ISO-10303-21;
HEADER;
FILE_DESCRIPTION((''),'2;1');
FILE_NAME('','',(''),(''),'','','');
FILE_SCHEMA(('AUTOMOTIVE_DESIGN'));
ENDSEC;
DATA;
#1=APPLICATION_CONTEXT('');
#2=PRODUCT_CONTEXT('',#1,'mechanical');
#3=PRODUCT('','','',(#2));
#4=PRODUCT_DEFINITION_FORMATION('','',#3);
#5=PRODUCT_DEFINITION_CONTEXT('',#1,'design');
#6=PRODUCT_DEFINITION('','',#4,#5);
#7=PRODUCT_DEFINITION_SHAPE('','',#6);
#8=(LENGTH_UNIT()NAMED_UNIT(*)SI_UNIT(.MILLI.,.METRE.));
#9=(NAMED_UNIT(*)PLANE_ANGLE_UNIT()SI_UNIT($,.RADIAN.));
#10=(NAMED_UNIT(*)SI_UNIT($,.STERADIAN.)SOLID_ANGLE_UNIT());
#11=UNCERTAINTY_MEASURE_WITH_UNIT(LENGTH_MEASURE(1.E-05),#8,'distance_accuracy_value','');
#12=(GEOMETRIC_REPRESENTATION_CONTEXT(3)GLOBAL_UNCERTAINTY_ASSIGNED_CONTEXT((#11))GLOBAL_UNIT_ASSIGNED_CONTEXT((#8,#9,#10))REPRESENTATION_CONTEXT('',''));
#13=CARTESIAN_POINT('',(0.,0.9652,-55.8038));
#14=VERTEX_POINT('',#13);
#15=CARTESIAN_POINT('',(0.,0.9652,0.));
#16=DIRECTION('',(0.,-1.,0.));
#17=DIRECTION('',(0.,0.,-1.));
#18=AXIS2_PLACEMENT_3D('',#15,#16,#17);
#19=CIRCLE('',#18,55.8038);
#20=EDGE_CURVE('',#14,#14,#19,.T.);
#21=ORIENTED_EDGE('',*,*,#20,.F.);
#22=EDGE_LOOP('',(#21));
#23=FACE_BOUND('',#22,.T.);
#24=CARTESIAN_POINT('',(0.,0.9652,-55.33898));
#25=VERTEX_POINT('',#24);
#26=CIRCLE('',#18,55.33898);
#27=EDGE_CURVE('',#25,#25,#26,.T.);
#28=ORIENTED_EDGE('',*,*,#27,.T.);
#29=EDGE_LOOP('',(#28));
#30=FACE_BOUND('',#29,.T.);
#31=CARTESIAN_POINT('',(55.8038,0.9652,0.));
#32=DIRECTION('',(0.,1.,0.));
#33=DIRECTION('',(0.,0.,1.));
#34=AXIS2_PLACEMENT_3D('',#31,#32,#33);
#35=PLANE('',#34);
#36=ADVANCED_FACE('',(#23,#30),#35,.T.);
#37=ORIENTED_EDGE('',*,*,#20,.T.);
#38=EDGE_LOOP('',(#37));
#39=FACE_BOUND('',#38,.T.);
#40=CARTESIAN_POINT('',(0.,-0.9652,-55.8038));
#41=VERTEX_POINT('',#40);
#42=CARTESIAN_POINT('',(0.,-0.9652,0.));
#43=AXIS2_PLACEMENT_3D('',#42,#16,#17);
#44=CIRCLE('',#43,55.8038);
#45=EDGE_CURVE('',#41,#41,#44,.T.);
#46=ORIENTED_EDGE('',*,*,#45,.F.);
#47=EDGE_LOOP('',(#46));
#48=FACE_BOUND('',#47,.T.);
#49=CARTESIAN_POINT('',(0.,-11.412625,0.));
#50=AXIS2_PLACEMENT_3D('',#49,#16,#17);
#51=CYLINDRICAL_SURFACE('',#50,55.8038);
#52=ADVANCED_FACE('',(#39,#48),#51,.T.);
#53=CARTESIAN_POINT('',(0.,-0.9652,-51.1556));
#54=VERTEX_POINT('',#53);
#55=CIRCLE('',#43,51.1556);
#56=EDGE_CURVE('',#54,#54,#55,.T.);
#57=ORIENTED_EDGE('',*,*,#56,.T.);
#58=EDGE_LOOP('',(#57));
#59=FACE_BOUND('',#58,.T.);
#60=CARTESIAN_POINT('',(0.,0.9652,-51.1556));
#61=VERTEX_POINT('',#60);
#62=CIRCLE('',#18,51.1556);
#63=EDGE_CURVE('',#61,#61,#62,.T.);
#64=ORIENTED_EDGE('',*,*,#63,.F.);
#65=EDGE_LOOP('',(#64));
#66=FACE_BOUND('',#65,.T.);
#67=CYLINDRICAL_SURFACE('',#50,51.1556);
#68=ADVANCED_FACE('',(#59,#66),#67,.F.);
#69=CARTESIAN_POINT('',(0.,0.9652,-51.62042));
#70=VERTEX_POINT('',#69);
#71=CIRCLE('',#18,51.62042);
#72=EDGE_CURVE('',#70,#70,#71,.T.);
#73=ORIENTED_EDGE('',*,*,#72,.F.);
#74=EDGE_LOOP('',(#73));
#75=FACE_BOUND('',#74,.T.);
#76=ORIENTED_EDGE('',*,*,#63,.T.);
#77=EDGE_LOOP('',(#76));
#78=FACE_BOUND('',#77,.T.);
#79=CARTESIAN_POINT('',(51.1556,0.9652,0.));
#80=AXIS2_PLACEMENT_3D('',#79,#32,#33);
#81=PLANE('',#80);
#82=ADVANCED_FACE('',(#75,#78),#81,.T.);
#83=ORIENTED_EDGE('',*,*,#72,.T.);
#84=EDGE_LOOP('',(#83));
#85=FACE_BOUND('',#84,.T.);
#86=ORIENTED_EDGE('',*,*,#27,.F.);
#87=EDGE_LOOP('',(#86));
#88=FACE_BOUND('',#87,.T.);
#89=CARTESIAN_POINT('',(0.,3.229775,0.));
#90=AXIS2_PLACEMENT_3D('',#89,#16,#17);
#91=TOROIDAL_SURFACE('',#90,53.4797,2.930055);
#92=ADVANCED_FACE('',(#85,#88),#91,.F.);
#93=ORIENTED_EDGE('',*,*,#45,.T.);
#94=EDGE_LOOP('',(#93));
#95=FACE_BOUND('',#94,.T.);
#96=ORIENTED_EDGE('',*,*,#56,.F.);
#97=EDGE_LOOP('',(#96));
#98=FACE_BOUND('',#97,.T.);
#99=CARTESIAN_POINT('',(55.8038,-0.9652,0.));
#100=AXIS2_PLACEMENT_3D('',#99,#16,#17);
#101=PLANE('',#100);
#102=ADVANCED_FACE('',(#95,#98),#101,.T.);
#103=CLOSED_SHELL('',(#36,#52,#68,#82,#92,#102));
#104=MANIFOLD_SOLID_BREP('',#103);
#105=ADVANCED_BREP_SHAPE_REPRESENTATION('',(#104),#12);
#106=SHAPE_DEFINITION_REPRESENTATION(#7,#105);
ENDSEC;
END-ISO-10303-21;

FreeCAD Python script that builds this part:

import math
import FreeCAD as App
import Part
import Sketcher
from FreeCAD import Vector
Q = App.Units.Quantity

doc = App.newDocument("Part")
body = doc.addObject("PartDesign::Body", "Body")

# Sketch on XY plane
sketch1 = doc.addObject("Sketcher::SketchObject", "Sketch")
body.addObject(sketch1)
sketch1.AttachmentSupport = (doc.XY_Plane, [""])
sketch1.MapMode = "FlatFace"
sketch1.addGeometry([
    Part.LineSegment(Vector(55.8, -0.97, 0), Vector(55.8, 0.97, 0)),  # 0
    Part.LineSegment(Vector(55.8, 0.97, 0), Vector(55.34, 0.97, 0)),  # 1
    Part.ArcOfCircle(Part.Circle(Vector(53.48, 3.23, 0), Vector(0, 0, 1), 2.93), math.radians(-129), math.radians(-51)),  # 2
    Part.LineSegment(Vector(51.62, 0.97, 0), Vector(51.16, 0.97, 0)),  # 3
    Part.LineSegment(Vector(51.16, 0.97, 0), Vector(51.16, -0.97, 0)),  # 4
    Part.LineSegment(Vector(51.16, -0.97, 0), Vector(55.8, -0.97, 0)),  # 5
], False)
sketch1.addConstraint([
    Sketcher.Constraint("Coincident", 0, 2, 1, 1),
    Sketcher.Constraint("Coincident", 1, 2, 2, 2),
    Sketcher.Constraint("Coincident", 2, 1, 3, 1),
    Sketcher.Constraint("Coincident", 3, 2, 4, 1),
    Sketcher.Constraint("Coincident", 4, 2, 5, 1),
    Sketcher.Constraint("Coincident", 5, 2, 0, 1),
    Sketcher.Constraint("Vertical", 0),
    Sketcher.Constraint("Horizontal", 1),
    Sketcher.Constraint("Horizontal", 3),
    Sketcher.Constraint("Vertical", 4),
    Sketcher.Constraint("Horizontal", 5),
    Sketcher.Constraint("Horizontal", 1, 2, 2, 1),
    Sketcher.Constraint("Equal", 1, 3),
    Sketcher.Constraint("DistanceX", 5, 1, 5, 2, Q("0.183 in")),
    Sketcher.Constraint("DistanceY", 0, 1, 0, 2, Q("0.076 in")),
    Sketcher.Constraint("DistanceX", 1, 2, 1, 1, Q("0.0183 in")),
    Sketcher.Constraint("DistanceX", -1, 1, 0, 2, Q("2.197 in")),
    Sketcher.Constraint("DistanceY", -1, 1, 0, 2, Q("0.038 in")),
    Sketcher.Constraint("Radius", 2, Q("2.930055 mm")),
])
revolution = doc.addObject("PartDesign::Revolution", "Revolution")
body.addObject(revolution)
revolution.Profile = sketch1
revolution.ReferenceAxis = (sketch1, ["V_Axis"])
revolution.Angle = 360

doc.recompute()
